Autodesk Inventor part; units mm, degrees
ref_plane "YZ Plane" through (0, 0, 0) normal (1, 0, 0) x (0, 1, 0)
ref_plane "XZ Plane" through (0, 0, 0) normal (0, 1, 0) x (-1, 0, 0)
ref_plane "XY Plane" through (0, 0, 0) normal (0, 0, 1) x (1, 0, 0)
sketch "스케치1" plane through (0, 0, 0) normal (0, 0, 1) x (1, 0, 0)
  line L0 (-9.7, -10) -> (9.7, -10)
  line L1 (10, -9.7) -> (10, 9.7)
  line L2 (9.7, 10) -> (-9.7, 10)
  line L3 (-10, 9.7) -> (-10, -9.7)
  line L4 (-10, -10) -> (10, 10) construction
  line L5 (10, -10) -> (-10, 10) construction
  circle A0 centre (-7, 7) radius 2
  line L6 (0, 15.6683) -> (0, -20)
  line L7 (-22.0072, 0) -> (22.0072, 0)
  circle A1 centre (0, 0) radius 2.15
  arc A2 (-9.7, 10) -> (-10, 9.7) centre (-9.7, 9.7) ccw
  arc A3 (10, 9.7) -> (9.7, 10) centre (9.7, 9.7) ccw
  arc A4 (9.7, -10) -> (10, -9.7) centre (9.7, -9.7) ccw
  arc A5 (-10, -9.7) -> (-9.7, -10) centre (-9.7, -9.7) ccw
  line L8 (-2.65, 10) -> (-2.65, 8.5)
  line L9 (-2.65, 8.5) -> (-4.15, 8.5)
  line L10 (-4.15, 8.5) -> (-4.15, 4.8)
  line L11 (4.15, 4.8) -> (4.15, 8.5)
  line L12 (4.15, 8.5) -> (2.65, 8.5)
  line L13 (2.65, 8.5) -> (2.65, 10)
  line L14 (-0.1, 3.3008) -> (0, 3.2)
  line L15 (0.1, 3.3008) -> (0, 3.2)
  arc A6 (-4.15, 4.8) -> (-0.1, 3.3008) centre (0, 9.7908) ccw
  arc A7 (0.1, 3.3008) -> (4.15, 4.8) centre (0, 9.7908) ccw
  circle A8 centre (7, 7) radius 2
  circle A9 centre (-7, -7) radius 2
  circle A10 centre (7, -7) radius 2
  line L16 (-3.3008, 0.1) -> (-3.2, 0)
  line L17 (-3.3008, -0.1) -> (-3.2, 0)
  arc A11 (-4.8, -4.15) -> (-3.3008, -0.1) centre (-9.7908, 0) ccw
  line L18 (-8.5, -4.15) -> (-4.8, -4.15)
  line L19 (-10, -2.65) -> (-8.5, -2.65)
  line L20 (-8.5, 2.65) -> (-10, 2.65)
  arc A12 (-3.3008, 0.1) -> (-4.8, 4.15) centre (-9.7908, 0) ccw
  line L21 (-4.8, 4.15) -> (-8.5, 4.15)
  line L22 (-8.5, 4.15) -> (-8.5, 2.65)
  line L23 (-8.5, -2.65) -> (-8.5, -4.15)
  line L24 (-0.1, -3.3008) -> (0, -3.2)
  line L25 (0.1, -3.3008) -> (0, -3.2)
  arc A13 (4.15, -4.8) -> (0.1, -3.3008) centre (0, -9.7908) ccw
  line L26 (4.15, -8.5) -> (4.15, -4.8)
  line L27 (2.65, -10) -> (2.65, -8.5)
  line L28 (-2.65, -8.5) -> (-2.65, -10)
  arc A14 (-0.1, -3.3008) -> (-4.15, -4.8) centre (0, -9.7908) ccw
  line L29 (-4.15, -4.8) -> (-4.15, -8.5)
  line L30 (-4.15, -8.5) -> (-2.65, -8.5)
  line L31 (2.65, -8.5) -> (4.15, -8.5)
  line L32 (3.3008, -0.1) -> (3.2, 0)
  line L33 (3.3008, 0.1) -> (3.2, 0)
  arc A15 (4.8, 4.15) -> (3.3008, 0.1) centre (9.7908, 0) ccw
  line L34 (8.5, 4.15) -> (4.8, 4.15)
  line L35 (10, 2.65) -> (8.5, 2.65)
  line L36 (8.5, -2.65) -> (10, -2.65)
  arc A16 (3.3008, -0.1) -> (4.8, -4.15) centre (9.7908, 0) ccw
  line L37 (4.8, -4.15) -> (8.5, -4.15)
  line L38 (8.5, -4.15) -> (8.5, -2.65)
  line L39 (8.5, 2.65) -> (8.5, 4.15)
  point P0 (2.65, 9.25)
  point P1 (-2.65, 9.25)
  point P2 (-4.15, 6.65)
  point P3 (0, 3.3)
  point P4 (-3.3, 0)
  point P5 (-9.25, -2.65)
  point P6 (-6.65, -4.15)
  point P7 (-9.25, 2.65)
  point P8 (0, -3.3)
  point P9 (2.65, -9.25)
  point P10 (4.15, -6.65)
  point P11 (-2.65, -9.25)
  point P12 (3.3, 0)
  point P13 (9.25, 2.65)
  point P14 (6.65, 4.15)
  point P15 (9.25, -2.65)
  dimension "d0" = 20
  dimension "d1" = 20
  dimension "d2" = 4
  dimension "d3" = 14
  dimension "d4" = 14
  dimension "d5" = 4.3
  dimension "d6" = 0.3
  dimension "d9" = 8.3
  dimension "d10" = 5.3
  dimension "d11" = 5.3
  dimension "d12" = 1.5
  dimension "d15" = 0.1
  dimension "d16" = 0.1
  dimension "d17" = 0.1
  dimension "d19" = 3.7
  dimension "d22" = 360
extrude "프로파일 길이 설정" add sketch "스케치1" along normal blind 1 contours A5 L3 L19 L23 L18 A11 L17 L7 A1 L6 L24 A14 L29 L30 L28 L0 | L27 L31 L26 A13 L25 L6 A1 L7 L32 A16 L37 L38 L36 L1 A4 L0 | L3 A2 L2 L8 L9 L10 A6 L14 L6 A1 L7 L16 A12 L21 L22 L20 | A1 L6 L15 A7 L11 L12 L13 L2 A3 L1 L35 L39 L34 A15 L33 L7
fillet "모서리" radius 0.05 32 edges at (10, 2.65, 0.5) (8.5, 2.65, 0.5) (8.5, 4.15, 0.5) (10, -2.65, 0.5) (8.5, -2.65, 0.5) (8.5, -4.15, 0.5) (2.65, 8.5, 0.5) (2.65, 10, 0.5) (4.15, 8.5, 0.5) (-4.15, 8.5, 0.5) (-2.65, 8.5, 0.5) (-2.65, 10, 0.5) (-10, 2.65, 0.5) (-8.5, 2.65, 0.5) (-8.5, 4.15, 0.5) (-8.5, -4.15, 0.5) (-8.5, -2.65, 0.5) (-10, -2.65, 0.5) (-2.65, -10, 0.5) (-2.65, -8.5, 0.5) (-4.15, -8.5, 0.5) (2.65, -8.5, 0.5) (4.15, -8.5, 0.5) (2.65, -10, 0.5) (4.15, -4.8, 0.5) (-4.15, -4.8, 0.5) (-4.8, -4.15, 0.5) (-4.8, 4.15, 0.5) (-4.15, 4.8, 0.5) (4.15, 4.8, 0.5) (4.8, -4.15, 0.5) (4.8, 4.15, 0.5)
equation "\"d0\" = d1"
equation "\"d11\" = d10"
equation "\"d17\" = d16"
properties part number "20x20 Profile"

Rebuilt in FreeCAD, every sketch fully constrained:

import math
import FreeCAD as App
import Part
import Sketcher

V = App.Vector
Q = App.Units.Quantity


def edges_at(feature, points):
    """Names of the edges that pass closest to the given points."""
    edges = feature.Shape.Edges
    near = lambda p: min(range(len(edges)), key=lambda i: edges[i].distToShape(Part.Vertex(*p))[0])
    return sorted({f"Edge{near(p) + 1}" for p in points})

doc = App.newDocument("Part")
body = doc.addObject("PartDesign::Body", "Body")

# Sketch on XY plane
sketch1 = body.newObject("Sketcher::SketchObject", "Sketch")
sketch1.AttachmentSupport = (doc.getObject("XY_Plane"), [""])
sketch1.MapMode = "FlatFace"
sketch1.addGeometry(Part.ArcOfCircle(Part.Circle(V(-9.7, -9.7, 0), V(0, 0, 1), 0.3), math.radians(180), math.radians(270)), False)
sketch1.addGeometry(Part.LineSegment(V(-9.7, -10, 0), V(-2.65, -10, 0)), False)
sketch1.addGeometry(Part.LineSegment(V(-2.65, -10, 0), V(-2.65, -8.5, 0)), False)
sketch1.addGeometry(Part.LineSegment(V(-2.65, -8.5, 0), V(-4.15, -8.5, 0)), False)
sketch1.addGeometry(Part.LineSegment(V(-4.15, -8.5, 0), V(-4.15, -4.8, 0)), False)
sketch1.addGeometry(Part.ArcOfCircle(Part.Circle(V(0, -9.79, 0), V(0, 0, 1), 6.49), math.radians(91), math.radians(130)), False)
sketch1.addGeometry(Part.LineSegment(V(-0.1, -3.3, 0), V(0, -3.2, 0)), False)
sketch1.addGeometry(Part.LineSegment(V(0, -3.2, 0), V(0.1, -3.3, 0)), False)
sketch1.addGeometry(Part.ArcOfCircle(Part.Circle(V(0, -9.79, 0), V(0, 0, 1), 6.49), math.radians(50), math.radians(89)), False)
sketch1.addGeometry(Part.LineSegment(V(4.15, -4.8, 0), V(4.15, -8.5, 0)), False)
sketch1.addGeometry(Part.LineSegment(V(4.15, -8.5, 0), V(2.65, -8.5, 0)), False)
sketch1.addGeometry(Part.LineSegment(V(2.65, -8.5, 0), V(2.65, -10, 0)), False)
sketch1.addGeometry(Part.LineSegment(V(2.65, -10, 0), V(9.7, -10, 0)), False)
sketch1.addGeometry(Part.ArcOfCircle(Part.Circle(V(9.7, -9.7, 0), V(0, 0, 1), 0.3), math.radians(-90), math.radians(0)), False)
sketch1.addGeometry(Part.LineSegment(V(10, -9.7, 0), V(10, -2.65, 0)), False)
sketch1.addGeometry(Part.LineSegment(V(10, -2.65, 0), V(8.5, -2.65, 0)), False)
sketch1.addGeometry(Part.LineSegment(V(8.5, -2.65, 0), V(8.5, -4.15, 0)), False)
sketch1.addGeometry(Part.LineSegment(V(8.5, -4.15, 0), V(4.8, -4.15, 0)), False)
sketch1.addGeometry(Part.ArcOfCircle(Part.Circle(V(9.79, 0, 0), V(0, 0, 1), 6.49), math.radians(-179), math.radians(-140)), False)
sketch1.addGeometry(Part.LineSegment(V(3.3, -0.1, 0), V(3.2, 0, 0)), False)
sketch1.addGeometry(Part.LineSegment(V(3.2, 0, 0), V(3.3, 0.1, 0)), False)
sketch1.addGeometry(Part.ArcOfCircle(Part.Circle(V(9.79, 0, 0), V(0, 0, 1), 6.49), math.radians(140), math.radians(179)), False)
sketch1.addGeometry(Part.LineSegment(V(4.8, 4.15, 0), V(8.5, 4.15, 0)), False)
sketch1.addGeometry(Part.LineSegment(V(8.5, 4.15, 0), V(8.5, 2.65, 0)), False)
sketch1.addGeometry(Part.LineSegment(V(8.5, 2.65, 0), V(10, 2.65, 0)), False)
sketch1.addGeometry(Part.LineSegment(V(10, 2.65, 0), V(10, 9.7, 0)), False)
sketch1.addGeometry(Part.ArcOfCircle(Part.Circle(V(9.7, 9.7, 0), V(0, 0, 1), 0.3), math.radians(0), math.radians(90)), False)
sketch1.addGeometry(Part.LineSegment(V(9.7, 10, 0), V(2.65, 10, 0)), False)
sketch1.addGeometry(Part.LineSegment(V(2.65, 10, 0), V(2.65, 8.5, 0)), False)
sketch1.addGeometry(Part.LineSegment(V(2.65, 8.5, 0), V(4.15, 8.5, 0)), False)
sketch1.addGeometry(Part.LineSegment(V(4.15, 8.5, 0), V(4.15, 4.8, 0)), False)
sketch1.addGeometry(Part.ArcOfCircle(Part.Circle(V(0, 9.79, 0), V(0, 0, 1), 6.49), math.radians(-89), math.radians(-50)), False)
sketch1.addGeometry(Part.LineSegment(V(0.1, 3.3, 0), V(0, 3.2, 0)), False)
sketch1.addGeometry(Part.LineSegment(V(0, 3.2, 0), V(-0.1, 3.3, 0)), False)
sketch1.addGeometry(Part.ArcOfCircle(Part.Circle(V(0, 9.79, 0), V(0, 0, 1), 6.49), math.radians(-130), math.radians(-91)), False)
sketch1.addGeometry(Part.LineSegment(V(-4.15, 4.8, 0), V(-4.15, 8.5, 0)), False)
sketch1.addGeometry(Part.LineSegment(V(-4.15, 8.5, 0), V(-2.65, 8.5, 0)), False)
sketch1.addGeometry(Part.LineSegment(V(-2.65, 8.5, 0), V(-2.65, 10, 0)), False)
sketch1.addGeometry(Part.LineSegment(V(-2.65, 10, 0), V(-9.7, 10, 0)), False)
sketch1.addGeometry(Part.ArcOfCircle(Part.Circle(V(-9.7, 9.7, 0), V(0, 0, 1), 0.3), math.radians(90), math.radians(180)), False)
sketch1.addGeometry(Part.LineSegment(V(-10, 9.7, 0), V(-10, 2.65, 0)), False)
sketch1.addGeometry(Part.LineSegment(V(-10, 2.65, 0), V(-8.5, 2.65, 0)), False)
sketch1.addGeometry(Part.LineSegment(V(-8.5, 2.65, 0), V(-8.5, 4.15, 0)), False)
sketch1.addGeometry(Part.LineSegment(V(-8.5, 4.15, 0), V(-4.8, 4.15, 0)), False)
sketch1.addGeometry(Part.ArcOfCircle(Part.Circle(V(-9.79, 0, 0), V(0, 0, 1), 6.49), math.radians(1), math.radians(40)), False)
sketch1.addGeometry(Part.LineSegment(V(-3.3, 0.1, 0), V(-3.2, 0, 0)), False)
sketch1.addGeometry(Part.LineSegment(V(-3.2, 0, 0), V(-3.3, -0.1, 0)), False)
sketch1.addGeometry(Part.ArcOfCircle(Part.Circle(V(-9.79, 0, 0), V(0, 0, 1), 6.49), math.radians(-40), math.radians(-1)), False)
sketch1.addGeometry(Part.LineSegment(V(-4.8, -4.15, 0), V(-8.5, -4.15, 0)), False)
sketch1.addGeometry(Part.LineSegment(V(-8.5, -4.15, 0), V(-8.5, -2.65, 0)), False)
sketch1.addGeometry(Part.LineSegment(V(-8.5, -2.65, 0), V(-10, -2.65, 0)), False)
sketch1.addGeometry(Part.LineSegment(V(-10, -2.65, 0), V(-10, -9.7, 0)), False)
sketch1.addGeometry(Part.Circle(V(0, 0, 0), V(0, 0, 1), 2.15), False)
sketch1.addGeometry(Part.Circle(V(-7, -7, 0), V(0, 0, 1), 2), False)
sketch1.addGeometry(Part.Circle(V(-7, 7, 0), V(0, 0, 1), 2), False)
sketch1.addGeometry(Part.Circle(V(7, -7, 0), V(0, 0, 1), 2), False)
sketch1.addGeometry(Part.Circle(V(7, 7, 0), V(0, 0, 1), 2), False)
sketch1.addConstraint(Sketcher.Constraint("Tangent", 0, 2, 1, 1))
sketch1.addConstraint(Sketcher.Constraint("Coincident", 1, 2, 2, 1))
sketch1.addConstraint(Sketcher.Constraint("Coincident", 2, 2, 3, 1))
sketch1.addConstraint(Sketcher.Constraint("Coincident", 3, 2, 4, 1))
sketch1.addConstraint(Sketcher.Constraint("Coincident", 4, 2, 5, 2))
sketch1.addConstraint(Sketcher.Constraint("Coincident", 5, 1, 6, 1))
sketch1.addConstraint(Sketcher.Constraint("Coincident", 6, 2, 7, 1))
sketch1.addConstraint(Sketcher.Constraint("Coincident", 7, 2, 8, 2))
sketch1.addConstraint(Sketcher.Constraint("Coincident", 8, 1, 9, 1))
sketch1.addConstraint(Sketcher.Constraint("Coincident", 9, 2, 10, 1))
sketch1.addConstraint(Sketcher.Constraint("Coincident", 10, 2, 11, 1))
sketch1.addConstraint(Sketcher.Constraint("Coincident", 11, 2, 12, 1))
sketch1.addConstraint(Sketcher.Constraint("Tangent", 12, 2, 13, 1))
sketch1.addConstraint(Sketcher.Constraint("Tangent", 13, 2, 14, 1))
sketch1.addConstraint(Sketcher.Constraint("Coincident", 14, 2, 15, 1))
sketch1.addConstraint(Sketcher.Constraint("Coincident", 15, 2, 16, 1))
sketch1.addConstraint(Sketcher.Constraint("Coincident", 16, 2, 17, 1))
sketch1.addConstraint(Sketcher.Constraint("Coincident", 17, 2, 18, 2))
sketch1.addConstraint(Sketcher.Constraint("Coincident", 18, 1, 19, 1))
sketch1.addConstraint(Sketcher.Constraint("Coincident", 19, 2, 20, 1))
sketch1.addConstraint(Sketcher.Constraint("Coincident", 20, 2, 21, 2))
sketch1.addConstraint(Sketcher.Constraint("Coincident", 21, 1, 22, 1))
sketch1.addConstraint(Sketcher.Constraint("Coincident", 22, 2, 23, 1))
sketch1.addConstraint(Sketcher.Constraint("Coincident", 23, 2, 24, 1))
sketch1.addConstraint(Sketcher.Constraint("Coincident", 24, 2, 25, 1))
sketch1.addConstraint(Sketcher.Constraint("Tangent", 25, 2, 26, 1))
sketch1.addConstraint(Sketcher.Constraint("Tangent", 26, 2, 27, 1))
sketch1.addConstraint(Sketcher.Constraint("Coincident", 27, 2, 28, 1))
sketch1.addConstraint(Sketcher.Constraint("Coincident", 28, 2, 29, 1))
sketch1.addConstraint(Sketcher.Constraint("Coincident", 29, 2, 30, 1))
sketch1.addConstraint(Sketcher.Constraint("Coincident", 30, 2, 31, 2))
sketch1.addConstraint(Sketcher.Constraint("Coincident", 31, 1, 32, 1))
sketch1.addConstraint(Sketcher.Constraint("Coincident", 32, 2, 33, 1))
sketch1.addConstraint(Sketcher.Constraint("Coincident", 33, 2, 34, 2))
sketch1.addConstraint(Sketcher.Constraint("Coincident", 34, 1, 35, 1))
sketch1.addConstraint(Sketcher.Constraint("Coincident", 35, 2, 36, 1))
sketch1.addConstraint(Sketcher.Constraint("Coincident", 36, 2, 37, 1))
sketch1.addConstraint(Sketcher.Constraint("Coincident", 37, 2, 38, 1))
sketch1.addConstraint(Sketcher.Constraint("Tangent", 38, 2, 39, 1))
sketch1.addConstraint(Sketcher.Constraint("Tangent", 39, 2, 40, 1))
sketch1.addConstraint(Sketcher.Constraint("Coincident", 40, 2, 41, 1))
sketch1.addConstraint(Sketcher.Constraint("Coincident", 41, 2, 42, 1))
sketch1.addConstraint(Sketcher.Constraint("Coincident", 42, 2, 43, 1))
sketch1.addConstraint(Sketcher.Constraint("Coincident", 43, 2, 44, 2))
sketch1.addConstraint(Sketcher.Constraint("Coincident", 44, 1, 45, 1))
sketch1.addConstraint(Sketcher.Constraint("Coincident", 45, 2, 46, 1))
sketch1.addConstraint(Sketcher.Constraint("Coincident", 46, 2, 47, 2))
sketch1.addConstraint(Sketcher.Constraint("Coincident", 47, 1, 48, 1))
sketch1.addConstraint(Sketcher.Constraint("Coincident", 48, 2, 49, 1))
sketch1.addConstraint(Sketcher.Constraint("Coincident", 49, 2, 50, 1))
sketch1.addConstraint(Sketcher.Constraint("Coincident", 50, 2, 51, 1))
sketch1.addConstraint(Sketcher.Constraint("Tangent", 51, 2, 0, 1))
sketch1.addConstraint(Sketcher.Constraint("Horizontal", 1))
sketch1.addConstraint(Sketcher.Constraint("Vertical", 2))
sketch1.addConstraint(Sketcher.Constraint("Horizontal", 3))
sketch1.addConstraint(Sketcher.Constraint("Vertical", 4))
sketch1.addConstraint(Sketcher.Constraint("Vertical", 9))
sketch1.addConstraint(Sketcher.Constraint("Horizontal", 10))
sketch1.addConstraint(Sketcher.Constraint("Vertical", 11))
sketch1.addConstraint(Sketcher.Constraint("Horizontal", 12))
sketch1.addConstraint(Sketcher.Constraint("Vertical", 14))
sketch1.addConstraint(Sketcher.Constraint("Horizontal", 15))
sketch1.addConstraint(Sketcher.Constraint("Vertical", 16))
sketch1.addConstraint(Sketcher.Constraint("Horizontal", 17))
sketch1.addConstraint(Sketcher.Constraint("Horizontal", 22))
sketch1.addConstraint(Sketcher.Constraint("Vertical", 23))
sketch1.addConstraint(Sketcher.Constraint("Horizontal", 24))
sketch1.addConstraint(Sketcher.Constraint("Vertical", 25))
sketch1.addConstraint(Sketcher.Constraint("Horizontal", 27))
sketch1.addConstraint(Sketcher.Constraint("Vertical", 28))
sketch1.addConstraint(Sketcher.Constraint("Horizontal", 29))
sketch1.addConstraint(Sketcher.Constraint("Vertical", 30))
sketch1.addConstraint(Sketcher.Constraint("Vertical", 35))
sketch1.addConstraint(Sketcher.Constraint("Horizontal", 36))
sketch1.addConstraint(Sketcher.Constraint("Vertical", 37))
sketch1.addConstraint(Sketcher.Constraint("Horizontal", 38))
sketch1.addConstraint(Sketcher.Constraint("Vertical", 40))
sketch1.addConstraint(Sketcher.Constraint("Horizontal", 41))
sketch1.addConstraint(Sketcher.Constraint("Vertical", 42))
sketch1.addConstraint(Sketcher.Constraint("Horizontal", 43))
sketch1.addConstraint(Sketcher.Constraint("Horizontal", 48))
sketch1.addConstraint(Sketcher.Constraint("Vertical", 49))
sketch1.addConstraint(Sketcher.Constraint("Horizontal", 50))
sketch1.addConstraint(Sketcher.Constraint("Vertical", 51))
sketch1.addConstraint(Sketcher.Constraint("Coincident", 52, 3, -1, 1))
sketch1.addConstraint(Sketcher.Constraint("Coincident", 8, 3, 5, 3))
sketch1.addConstraint(Sketcher.Constraint("Coincident", 21, 3, 18, 3))
sketch1.addConstraint(Sketcher.Constraint("Coincident", 34, 3, 31, 3))
sketch1.addConstraint(Sketcher.Constraint("Coincident", 47, 3, 44, 3))
sketch1.addConstraint(Sketcher.Constraint("Equal", 5, 8))
sketch1.addConstraint(Sketcher.Constraint("Equal", 0, 13))
sketch1.addConstraint(Sketcher.Constraint("Equal", 8, 18))
sketch1.addConstraint(Sketcher.Constraint("Equal", 18, 21))
sketch1.addConstraint(Sketcher.Constraint("Equal", 13, 26))
sketch1.addConstraint(Sketcher.Constraint("Equal", 21, 31))
sketch1.addConstraint(Sketcher.Constraint("Equal", 31, 34))
sketch1.addConstraint(Sketcher.Constraint("Equal", 26, 39))
sketch1.addConstraint(Sketcher.Constraint("Equal", 34, 44))
sketch1.addConstraint(Sketcher.Constraint("Equal", 44, 47))
sketch1.addConstraint(Sketcher.Constraint("Equal", 53, 54))
sketch1.addConstraint(Sketcher.Constraint("Equal", 54, 55))
sketch1.addConstraint(Sketcher.Constraint("Equal", 55, 56))
sketch1.addConstraint(Sketcher.Constraint("Symmetric", 0, 3, 26, 3, -1, 1))
sketch1.addConstraint(Sketcher.Constraint("Symmetric", 5, 3, 31, 3, -1, 1))
sketch1.addConstraint(Sketcher.Constraint("Symmetric", 13, 3, 39, 3, -1, 1))
sketch1.addConstraint(Sketcher.Constraint("Symmetric", 18, 3, 44, 3, -1, 1))
sketch1.addConstraint(Sketcher.Constraint("Symmetric", 54, 3, 55, 3, -1, 1))
sketch1.addConstraint(Sketcher.Constraint("Symmetric", 53, 3, 56, 3, -1, 1))
sketch1.addConstraint(Sketcher.Constraint("Symmetric", 2, 2, 28, 2, -1, 1))
sketch1.addConstraint(Sketcher.Constraint("Symmetric", 6, 2, 32, 2, -1, 1))
sketch1.addConstraint(Sketcher.Constraint("Symmetric", 9, 2, 35, 2, -1, 1))
sketch1.addConstraint(Sketcher.Constraint("Symmetric", 15, 2, 41, 2, -1, 1))
sketch1.addConstraint(Sketcher.Constraint("Symmetric", 19, 2, 45, 2, -1, 1))
sketch1.addConstraint(Sketcher.Constraint("Symmetric", 22, 2, 48, 2, -1, 1))
sketch1.addConstraint(Sketcher.Constraint("Symmetric", 0, 3, 13, 3, -2))
sketch1.addConstraint(Sketcher.Constraint("Symmetric", 53, 3, 55, 3, -2))
sketch1.addConstraint(Sketcher.Constraint("Symmetric", 5, 1, 7, 2, -2))
sketch1.addConstraint(Sketcher.Constraint("Symmetric", 3, 2, 9, 2, -2))
sketch1.addConstraint(Sketcher.Constraint("Symmetric", 23, 2, 41, 2, -2))
sketch1.addConstraint(Sketcher.Constraint("Symmetric", 21, 1, 43, 2, -2))
sketch1.addConstraint(Sketcher.Constraint("PointOnObject", 6, 2, -2))
sketch1.addConstraint(Sketcher.Constraint("PointOnObject", 19, 2, -1))
sketch1.addConstraint(Sketcher.Constraint("Perpendicular", 6, 19))
sketch1.addConstraint(Sketcher.Constraint("Perpendicular", 7, 20))
sketch1.addConstraint(Sketcher.Constraint("Perpendicular", 19, 32))
sketch1.addConstraint(Sketcher.Constraint("Perpendicular", 20, 33))
sketch1.addConstraint(Sketcher.Constraint("Perpendicular", 32, 45))
sketch1.addConstraint(Sketcher.Constraint("Perpendicular", 33, 46))
sketch1.addConstraint(Sketcher.Constraint("Horizontal", 30, 2, 34, 1))
sketch1.addConstraint(Sketcher.Constraint("Horizontal", 17, 2, 47, 1))
sketch1.addConstraint(Sketcher.Constraint("Horizontal", 15, 2, 49, 2))
sketch1.addConstraint(Sketcher.Constraint("Vertical", 11, 2, 27, 2))
sketch1.addConstraint(Sketcher.Constraint("Vertical", 2, 2, 36, 2))
sketch1.addConstraint(Sketcher.Constraint("Equal", 10, 15))
sketch1.addConstraint(Sketcher.Constraint("Equal", 50, 2))
sketch1.addConstraint(Sketcher.Constraint("Equal", 48, 4))
sketch1.addConstraint(Sketcher.Constraint("Equal", 38, 14))
sketch1.addConstraint(Sketcher.Constraint("Equal", 11, 16))
sketch1.addConstraint(Sketcher.Constraint("Equal", 7, 19))
sketch1.addConstraint(Sketcher.Constraint("Diameter", 53, Q("4 mm")))
sketch1.addConstraint(Sketcher.Constraint("Diameter", 52, Q("4.3 mm")))
sketch1.addConstraint(Sketcher.Constraint("Radius", 0, Q("0.3 mm")))
sketch1.addConstraint(Sketcher.Constraint("DistanceX", 3, 2, 3, 1, Q("1.5 mm")))
sketch1.addConstraint(Sketcher.Constraint("DistanceX", 17, 2, 17, 1, Q("3.7 mm")))
sketch1.addConstraint(Sketcher.Constraint("DistanceX", 5, 1, -1, 1, Q("0.1 mm")))
sketch1.addConstraint(Sketcher.Constraint("DistanceX", 53, 3, -1, 1, Q("7 mm")))
sketch1.addConstraint(Sketcher.Constraint("DistanceY", 53, 3, -1, 1, Q("7 mm")))
sketch1.addConstraint(Sketcher.Constraint("DistanceY", 0, 2, -1, 1, Q("10 mm")))
sketch1.addConstraint(Sketcher.Constraint("DistanceX", -1, 1, 13, 2, Q("10 mm")))
sketch1.addConstraint(Sketcher.Constraint("DistanceX", 1, 1, 1, 2, Q("7.05 mm")))
sketch1.addConstraint(Sketcher.Constraint("DistanceY", 6, 2, -1, 1, Q("3.2 mm")))
sketch1.addConstraint(Sketcher.Constraint("Radius", 5, Q("6.4908 mm")))
pad1 = body.newObject("PartDesign::Pad", "Pad")
pad1.Profile = sketch1
pad1.Length = 1
doc.recompute()

fillet = body.newObject("PartDesign::Fillet", "Fillet")
fillet.Base = (pad1, edges_at(pad1, [
    (10, 2.65, 0.5),
    (8.5, 2.65, 0.5),
    (8.5, 4.15, 0.5),
    (10, -2.65, 0.5),
    (8.5, -2.65, 0.5),
    (8.5, -4.15, 0.5),
    (2.65, 8.5, 0.5),
    (2.65, 10, 0.5),
    (4.15, 8.5, 0.5),
    (-4.15, 8.5, 0.5),
    (-2.65, 8.5, 0.5),
    (-2.65, 10, 0.5),
    (-10, 2.65, 0.5),
    (-8.5, 2.65, 0.5),
    (-8.5, 4.15, 0.5),
    (-8.5, -4.15, 0.5),
    (-8.5, -2.65, 0.5),
    (-10, -2.65, 0.5),
    (-2.65, -10, 0.5),
    (-2.65, -8.5, 0.5),
    (-4.15, -8.5, 0.5),
    (2.65, -8.5, 0.5),
    (4.15, -8.5, 0.5),
    (2.65, -10, 0.5),
    (4.15, -4.8, 0.5),
    (-4.15, -4.8, 0.5),
    (-4.8, -4.15, 0.5),
    (-4.8, 4.15, 0.5),
    (-4.15, 4.8, 0.5),
    (4.15, 4.8, 0.5),
    (4.8, -4.15, 0.5),
    (4.8, 4.15, 0.5),
]))
fillet.Radius = 0.05

doc.recompute()
